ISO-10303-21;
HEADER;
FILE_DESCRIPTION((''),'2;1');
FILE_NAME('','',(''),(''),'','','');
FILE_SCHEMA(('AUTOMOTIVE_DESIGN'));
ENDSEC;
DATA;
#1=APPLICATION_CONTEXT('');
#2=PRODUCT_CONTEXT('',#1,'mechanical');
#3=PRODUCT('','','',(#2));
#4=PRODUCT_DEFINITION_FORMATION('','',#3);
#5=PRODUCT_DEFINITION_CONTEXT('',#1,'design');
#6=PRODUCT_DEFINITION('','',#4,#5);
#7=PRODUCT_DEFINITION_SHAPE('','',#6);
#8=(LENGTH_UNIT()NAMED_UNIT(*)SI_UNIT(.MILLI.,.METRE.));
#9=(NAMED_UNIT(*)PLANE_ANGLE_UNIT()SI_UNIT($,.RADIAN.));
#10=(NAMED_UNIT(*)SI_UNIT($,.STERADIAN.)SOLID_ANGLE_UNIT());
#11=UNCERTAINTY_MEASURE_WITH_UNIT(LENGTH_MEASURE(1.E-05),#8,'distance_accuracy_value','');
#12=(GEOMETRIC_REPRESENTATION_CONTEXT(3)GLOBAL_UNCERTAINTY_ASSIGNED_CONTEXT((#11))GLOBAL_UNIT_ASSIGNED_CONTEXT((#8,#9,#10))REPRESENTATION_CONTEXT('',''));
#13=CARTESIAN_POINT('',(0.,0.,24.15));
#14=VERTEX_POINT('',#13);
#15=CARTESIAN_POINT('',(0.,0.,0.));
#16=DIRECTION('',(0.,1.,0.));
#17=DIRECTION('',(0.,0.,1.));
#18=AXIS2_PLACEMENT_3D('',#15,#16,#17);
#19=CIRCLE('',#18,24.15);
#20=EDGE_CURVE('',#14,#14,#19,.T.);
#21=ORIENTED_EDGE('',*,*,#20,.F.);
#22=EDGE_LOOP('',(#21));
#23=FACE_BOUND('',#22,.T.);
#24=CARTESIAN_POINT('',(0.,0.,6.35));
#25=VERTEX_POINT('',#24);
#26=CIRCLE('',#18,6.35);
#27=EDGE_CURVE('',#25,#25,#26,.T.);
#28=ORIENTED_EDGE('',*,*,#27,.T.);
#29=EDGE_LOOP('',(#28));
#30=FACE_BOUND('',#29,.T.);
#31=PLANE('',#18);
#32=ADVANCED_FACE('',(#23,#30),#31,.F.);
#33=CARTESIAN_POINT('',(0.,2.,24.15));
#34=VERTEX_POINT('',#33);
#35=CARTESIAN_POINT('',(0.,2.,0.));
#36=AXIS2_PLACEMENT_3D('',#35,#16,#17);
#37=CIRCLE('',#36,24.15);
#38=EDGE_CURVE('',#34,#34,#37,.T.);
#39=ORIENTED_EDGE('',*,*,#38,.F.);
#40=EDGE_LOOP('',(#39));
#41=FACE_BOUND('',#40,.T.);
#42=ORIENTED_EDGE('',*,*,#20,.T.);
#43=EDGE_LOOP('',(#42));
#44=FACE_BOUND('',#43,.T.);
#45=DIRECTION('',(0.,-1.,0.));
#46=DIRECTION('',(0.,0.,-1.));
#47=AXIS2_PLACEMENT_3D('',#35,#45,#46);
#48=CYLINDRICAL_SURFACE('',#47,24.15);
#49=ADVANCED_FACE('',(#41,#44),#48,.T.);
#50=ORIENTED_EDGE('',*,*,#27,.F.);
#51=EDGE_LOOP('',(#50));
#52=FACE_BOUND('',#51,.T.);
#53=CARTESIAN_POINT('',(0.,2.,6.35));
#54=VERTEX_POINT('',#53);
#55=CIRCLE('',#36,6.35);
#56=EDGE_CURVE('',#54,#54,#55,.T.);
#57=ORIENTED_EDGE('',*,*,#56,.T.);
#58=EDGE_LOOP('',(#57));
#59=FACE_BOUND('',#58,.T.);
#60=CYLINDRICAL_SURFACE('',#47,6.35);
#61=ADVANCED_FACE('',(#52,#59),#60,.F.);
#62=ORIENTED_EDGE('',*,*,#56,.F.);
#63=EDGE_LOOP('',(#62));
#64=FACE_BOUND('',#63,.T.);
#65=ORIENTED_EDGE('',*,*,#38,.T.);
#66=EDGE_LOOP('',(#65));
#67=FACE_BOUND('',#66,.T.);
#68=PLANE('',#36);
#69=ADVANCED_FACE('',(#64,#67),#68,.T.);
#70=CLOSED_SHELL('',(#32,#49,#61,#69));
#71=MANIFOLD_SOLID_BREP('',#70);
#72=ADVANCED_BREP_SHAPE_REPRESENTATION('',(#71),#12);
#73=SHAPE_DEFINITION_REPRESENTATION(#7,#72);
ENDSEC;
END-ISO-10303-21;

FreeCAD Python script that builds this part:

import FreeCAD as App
import Part
import Sketcher

V = App.Vector
Q = App.Units.Quantity

doc = App.newDocument("Part")
body = doc.addObject("PartDesign::Body", "Body")

# Sketch on XZ plane
sketch1 = body.newObject("Sketcher::SketchObject", "Sketch")
sketch1.AttachmentSupport = (doc.getObject("XZ_Plane"), [""])
sketch1.MapMode = "FlatFace"
sketch1.addGeometry(Part.Circle(V(0, 0, 0), V(0, 0, 1), 24), False)
sketch1.addGeometry(Part.Circle(V(0, 0, 0), V(0, 0, 1), 6), False)
sketch1.addConstraint(Sketcher.Constraint("Coincident", 0, 3, -1, 1))
sketch1.addConstraint(Sketcher.Constraint("Coincident", 1, 3, -1, 1))
sketch1.addConstraint(Sketcher.Constraint("Diameter", 0, Q("48.3 mm")))
sketch1.addConstraint(Sketcher.Constraint("Diameter", 1, Q("12.7 mm")))
pad1 = body.newObject("PartDesign::Pad", "Pad")
pad1.Profile = sketch1
pad1.Length = 2
pad1.Reversed = True

doc.recompute()
